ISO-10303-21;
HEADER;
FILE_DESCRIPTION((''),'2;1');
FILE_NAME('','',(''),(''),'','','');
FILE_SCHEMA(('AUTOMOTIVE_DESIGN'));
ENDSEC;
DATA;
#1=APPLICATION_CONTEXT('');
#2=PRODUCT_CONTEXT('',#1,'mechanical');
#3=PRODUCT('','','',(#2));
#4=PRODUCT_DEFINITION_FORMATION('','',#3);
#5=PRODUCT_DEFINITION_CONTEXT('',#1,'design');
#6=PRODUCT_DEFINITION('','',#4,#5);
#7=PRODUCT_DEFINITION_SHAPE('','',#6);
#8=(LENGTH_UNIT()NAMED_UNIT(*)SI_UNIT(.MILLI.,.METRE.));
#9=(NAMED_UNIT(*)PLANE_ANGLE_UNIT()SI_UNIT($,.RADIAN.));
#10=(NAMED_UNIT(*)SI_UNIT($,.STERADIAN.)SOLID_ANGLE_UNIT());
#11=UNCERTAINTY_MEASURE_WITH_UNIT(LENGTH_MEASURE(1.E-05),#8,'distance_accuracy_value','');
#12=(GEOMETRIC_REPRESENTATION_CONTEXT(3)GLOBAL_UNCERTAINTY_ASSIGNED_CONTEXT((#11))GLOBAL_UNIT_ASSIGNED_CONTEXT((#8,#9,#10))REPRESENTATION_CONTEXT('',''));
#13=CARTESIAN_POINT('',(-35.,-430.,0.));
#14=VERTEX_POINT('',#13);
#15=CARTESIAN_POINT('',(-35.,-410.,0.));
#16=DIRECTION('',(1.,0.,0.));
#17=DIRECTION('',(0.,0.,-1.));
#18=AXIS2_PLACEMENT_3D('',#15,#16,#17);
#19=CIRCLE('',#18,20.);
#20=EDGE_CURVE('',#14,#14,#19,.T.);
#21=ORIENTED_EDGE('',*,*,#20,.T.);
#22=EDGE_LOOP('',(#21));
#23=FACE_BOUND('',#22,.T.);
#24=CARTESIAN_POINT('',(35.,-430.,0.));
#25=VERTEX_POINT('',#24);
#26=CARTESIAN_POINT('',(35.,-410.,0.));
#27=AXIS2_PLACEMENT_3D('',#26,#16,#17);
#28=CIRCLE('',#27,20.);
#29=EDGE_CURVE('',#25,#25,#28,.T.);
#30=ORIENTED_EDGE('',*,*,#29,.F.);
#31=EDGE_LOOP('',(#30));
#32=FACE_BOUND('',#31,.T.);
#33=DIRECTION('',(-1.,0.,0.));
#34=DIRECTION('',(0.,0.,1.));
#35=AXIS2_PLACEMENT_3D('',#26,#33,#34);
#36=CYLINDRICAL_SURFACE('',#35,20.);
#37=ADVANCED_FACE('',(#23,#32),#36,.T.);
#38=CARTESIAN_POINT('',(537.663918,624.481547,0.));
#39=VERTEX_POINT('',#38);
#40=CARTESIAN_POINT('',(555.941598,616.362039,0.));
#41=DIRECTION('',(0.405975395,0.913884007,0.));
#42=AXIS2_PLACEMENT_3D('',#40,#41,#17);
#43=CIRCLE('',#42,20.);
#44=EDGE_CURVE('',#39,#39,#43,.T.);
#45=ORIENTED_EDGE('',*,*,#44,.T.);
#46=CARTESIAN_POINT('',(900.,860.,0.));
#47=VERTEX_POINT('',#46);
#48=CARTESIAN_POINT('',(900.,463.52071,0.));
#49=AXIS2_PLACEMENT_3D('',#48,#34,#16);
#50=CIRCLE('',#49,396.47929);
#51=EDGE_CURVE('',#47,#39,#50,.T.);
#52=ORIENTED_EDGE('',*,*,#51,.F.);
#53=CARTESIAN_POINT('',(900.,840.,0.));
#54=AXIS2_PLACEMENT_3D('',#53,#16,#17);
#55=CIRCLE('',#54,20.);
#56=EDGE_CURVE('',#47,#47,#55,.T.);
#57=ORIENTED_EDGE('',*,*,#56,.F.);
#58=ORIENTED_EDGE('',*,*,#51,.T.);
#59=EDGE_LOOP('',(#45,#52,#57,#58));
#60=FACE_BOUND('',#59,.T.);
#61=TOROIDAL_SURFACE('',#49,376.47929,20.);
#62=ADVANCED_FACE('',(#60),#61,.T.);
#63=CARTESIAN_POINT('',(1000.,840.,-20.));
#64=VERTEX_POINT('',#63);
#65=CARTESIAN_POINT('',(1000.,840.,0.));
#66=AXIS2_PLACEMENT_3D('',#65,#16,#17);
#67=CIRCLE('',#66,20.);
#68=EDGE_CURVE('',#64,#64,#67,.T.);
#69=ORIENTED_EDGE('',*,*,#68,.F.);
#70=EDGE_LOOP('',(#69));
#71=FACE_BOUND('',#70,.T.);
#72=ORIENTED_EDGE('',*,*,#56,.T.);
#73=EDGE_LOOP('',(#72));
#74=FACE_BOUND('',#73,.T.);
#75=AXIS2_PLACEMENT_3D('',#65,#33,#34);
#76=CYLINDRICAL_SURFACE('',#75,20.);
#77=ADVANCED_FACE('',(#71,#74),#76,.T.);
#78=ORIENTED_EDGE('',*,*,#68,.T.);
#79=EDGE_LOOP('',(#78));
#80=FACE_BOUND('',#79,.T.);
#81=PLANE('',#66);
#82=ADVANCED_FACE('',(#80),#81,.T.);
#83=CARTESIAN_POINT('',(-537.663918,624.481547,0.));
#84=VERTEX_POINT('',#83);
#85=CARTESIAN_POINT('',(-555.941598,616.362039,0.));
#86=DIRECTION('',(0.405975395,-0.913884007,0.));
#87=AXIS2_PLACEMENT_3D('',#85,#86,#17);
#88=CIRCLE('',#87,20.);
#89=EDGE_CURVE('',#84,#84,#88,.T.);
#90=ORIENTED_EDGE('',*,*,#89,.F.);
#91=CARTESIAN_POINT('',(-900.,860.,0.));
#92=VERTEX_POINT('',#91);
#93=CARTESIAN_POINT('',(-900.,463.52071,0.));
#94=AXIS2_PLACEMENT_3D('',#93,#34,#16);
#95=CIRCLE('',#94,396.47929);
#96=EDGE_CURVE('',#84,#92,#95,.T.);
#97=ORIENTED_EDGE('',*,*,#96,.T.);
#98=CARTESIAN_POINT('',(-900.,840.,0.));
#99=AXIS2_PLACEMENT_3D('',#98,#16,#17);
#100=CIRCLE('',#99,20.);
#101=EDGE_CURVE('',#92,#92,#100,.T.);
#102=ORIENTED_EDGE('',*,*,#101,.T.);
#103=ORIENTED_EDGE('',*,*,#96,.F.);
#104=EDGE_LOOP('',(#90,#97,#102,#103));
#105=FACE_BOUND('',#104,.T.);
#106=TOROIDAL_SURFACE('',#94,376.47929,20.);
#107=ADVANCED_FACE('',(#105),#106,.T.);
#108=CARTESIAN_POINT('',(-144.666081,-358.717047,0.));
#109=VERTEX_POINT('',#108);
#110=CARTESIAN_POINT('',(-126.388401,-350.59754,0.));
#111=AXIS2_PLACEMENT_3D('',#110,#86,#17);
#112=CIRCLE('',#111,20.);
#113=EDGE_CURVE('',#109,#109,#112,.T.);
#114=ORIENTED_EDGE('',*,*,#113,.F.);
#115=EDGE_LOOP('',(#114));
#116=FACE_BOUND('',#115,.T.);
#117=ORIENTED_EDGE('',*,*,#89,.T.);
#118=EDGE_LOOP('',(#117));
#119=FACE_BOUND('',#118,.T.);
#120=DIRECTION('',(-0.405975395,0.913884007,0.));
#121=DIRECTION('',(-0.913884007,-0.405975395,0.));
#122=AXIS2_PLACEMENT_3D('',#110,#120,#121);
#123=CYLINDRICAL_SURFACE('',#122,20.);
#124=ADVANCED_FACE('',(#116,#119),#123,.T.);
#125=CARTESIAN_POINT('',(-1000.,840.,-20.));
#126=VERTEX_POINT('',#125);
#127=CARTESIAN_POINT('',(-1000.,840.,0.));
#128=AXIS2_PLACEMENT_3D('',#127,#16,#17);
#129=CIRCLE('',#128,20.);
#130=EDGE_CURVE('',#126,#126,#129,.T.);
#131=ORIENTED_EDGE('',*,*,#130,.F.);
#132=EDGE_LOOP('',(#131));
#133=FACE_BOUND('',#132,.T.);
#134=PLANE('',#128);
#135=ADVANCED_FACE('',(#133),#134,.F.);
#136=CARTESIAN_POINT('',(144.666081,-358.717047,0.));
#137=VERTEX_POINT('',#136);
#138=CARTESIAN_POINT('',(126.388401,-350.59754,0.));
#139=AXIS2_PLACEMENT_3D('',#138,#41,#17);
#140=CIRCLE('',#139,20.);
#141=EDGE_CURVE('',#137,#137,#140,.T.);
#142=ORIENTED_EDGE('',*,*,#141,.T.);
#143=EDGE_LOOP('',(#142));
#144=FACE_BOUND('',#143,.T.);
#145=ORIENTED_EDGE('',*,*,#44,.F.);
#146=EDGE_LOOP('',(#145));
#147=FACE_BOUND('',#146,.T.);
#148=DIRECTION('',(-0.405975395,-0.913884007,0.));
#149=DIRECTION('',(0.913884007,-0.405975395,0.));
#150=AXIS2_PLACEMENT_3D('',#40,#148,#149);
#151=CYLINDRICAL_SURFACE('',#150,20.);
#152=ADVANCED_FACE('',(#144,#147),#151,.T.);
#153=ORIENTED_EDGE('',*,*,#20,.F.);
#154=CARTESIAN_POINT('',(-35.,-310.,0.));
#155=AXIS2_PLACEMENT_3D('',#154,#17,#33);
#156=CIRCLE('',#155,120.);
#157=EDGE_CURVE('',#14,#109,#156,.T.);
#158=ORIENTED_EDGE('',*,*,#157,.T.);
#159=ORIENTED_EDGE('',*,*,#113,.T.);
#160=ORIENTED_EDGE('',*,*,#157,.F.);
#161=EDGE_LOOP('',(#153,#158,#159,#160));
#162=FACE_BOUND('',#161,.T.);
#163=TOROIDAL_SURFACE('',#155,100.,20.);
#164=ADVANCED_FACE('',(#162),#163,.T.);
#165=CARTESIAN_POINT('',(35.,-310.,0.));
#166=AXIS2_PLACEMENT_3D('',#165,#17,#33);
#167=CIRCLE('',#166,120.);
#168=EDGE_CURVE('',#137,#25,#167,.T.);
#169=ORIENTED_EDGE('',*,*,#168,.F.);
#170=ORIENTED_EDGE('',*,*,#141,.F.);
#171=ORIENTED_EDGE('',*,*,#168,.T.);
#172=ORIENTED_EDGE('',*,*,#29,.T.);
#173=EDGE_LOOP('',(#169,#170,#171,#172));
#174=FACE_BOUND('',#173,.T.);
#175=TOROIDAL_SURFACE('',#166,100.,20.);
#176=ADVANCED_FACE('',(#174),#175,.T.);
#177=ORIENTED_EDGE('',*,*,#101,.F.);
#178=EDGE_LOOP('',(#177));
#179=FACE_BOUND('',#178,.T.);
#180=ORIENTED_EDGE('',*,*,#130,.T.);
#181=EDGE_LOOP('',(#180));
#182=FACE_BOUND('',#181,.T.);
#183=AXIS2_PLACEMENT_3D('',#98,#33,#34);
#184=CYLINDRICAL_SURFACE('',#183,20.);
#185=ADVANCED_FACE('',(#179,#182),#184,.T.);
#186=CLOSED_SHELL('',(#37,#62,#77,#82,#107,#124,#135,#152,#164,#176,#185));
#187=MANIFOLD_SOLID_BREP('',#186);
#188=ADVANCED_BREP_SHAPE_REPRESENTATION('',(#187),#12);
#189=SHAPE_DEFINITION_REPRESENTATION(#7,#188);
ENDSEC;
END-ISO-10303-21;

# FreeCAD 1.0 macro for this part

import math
import FreeCAD as App
import Part
import Sketcher

V = App.Vector
Q = App.Units.Quantity

doc = App.newDocument("Part")
params = doc.addObject("Spreadsheet::Sheet", "Params")
for row, (alias, value) in enumerate([
    ("sketch1_diameter", "40 mm"),
    ("sketch2_radius", "100 mm"),
    ("sketch2_width", "100 mm"),
    ("sketch2_width2", "70 mm"),
], start=1):
    params.set(f"A{row}", alias)
    params.set(f"B{row}", "=" + value)
    params.setAlias(f"B{row}", alias)

body = doc.addObject("PartDesign::Body", "Body")

# Sketch on YZ plane
sketch1 = body.newObject("Sketcher::SketchObject", "Sketch")
sketch1.AttachmentSupport = (doc.getObject("YZ_Plane"), [""])
sketch1.MapMode = "FlatFace"
sketch1.AttachmentOffset = App.Placement(V(0, 0, -1000), App.Rotation())
sketch1.addGeometry(Part.Circle(V(840, 0, 0), V(0, 0, 1), 20), False)
sketch1.addConstraint([
    Sketcher.Constraint("PointOnObject", 0, 3, -1),
    Sketcher.Constraint("Diameter", 0, Q("40 mm")),
    Sketcher.Constraint("DistanceX", -1, 1, 0, 3, Q("840 mm")),
])
sketch1.setExpression("Constraints[1]", "Params.sketch1_diameter")

# Sketch on XY plane
sketch2 = body.newObject("Sketcher::SketchObject", "Sketch001")
sketch2.AttachmentSupport = (doc.getObject("XY_Plane"), [""])
sketch2.MapMode = "FlatFace"
sketch2.addGeometry([
    Part.LineSegment(V(1000, 840, 0), V(900, 840, 0)),  # 0
    Part.ArcOfCircle(Part.Circle(V(900, 464, 0), V(0, 0, 1), 376), math.radians(90), math.radians(156)),  # 1
    Part.LineSegment(V(556, 616, 0), V(126, -351, 0)),  # 2
    Part.ArcOfCircle(Part.Circle(V(35, -310, 0), V(0, 0, 1), 100), math.radians(-90), math.radians(-24)),  # 3
    Part.LineSegment(V(35, -410, 0), V(-35, -410, 0)),  # 4
    Part.ArcOfCircle(Part.Circle(V(-35, -310, 0), V(0, 0, 1), 100), math.radians(-156), math.radians(-90)),  # 5
    Part.LineSegment(V(-126, -351, 0), V(-556, 616, 0)),  # 6
    Part.ArcOfCircle(Part.Circle(V(-900, 464, 0), V(0, 0, 1), 376), math.radians(24), math.radians(90)),  # 7
    Part.LineSegment(V(-900, 840, 0), V(-1000, 840, 0)),  # 8
], False)
sketch2.addConstraint([
    Sketcher.Constraint("Tangent", 0, 2, 1, 1),
    Sketcher.Constraint("Tangent", 1, 2, 2, 1),
    Sketcher.Constraint("Tangent", 2, 2, 3, 2),
    Sketcher.Constraint("Tangent", 3, 1, 4, 1),
    Sketcher.Constraint("Tangent", 4, 2, 5, 2),
    Sketcher.Constraint("Tangent", 5, 1, 6, 1),
    Sketcher.Constraint("Tangent", 6, 2, 7, 1),
    Sketcher.Constraint("Tangent", 7, 2, 8, 1),
    Sketcher.Constraint("Horizontal", 0),
    Sketcher.Constraint("Horizontal", 4),
    Sketcher.Constraint("Horizontal", 8),
    Sketcher.Constraint("Equal", 3, 5),
    Sketcher.Constraint("Equal", 1, 7),
    Sketcher.Constraint("Symmetric", 1, 3, 7, 3, -2),
    Sketcher.Constraint("Equal", 0, 8),
    Sketcher.Constraint("Equal", 2, 6),
    Sketcher.Constraint("Radius", 3, Q("100 mm")),
    Sketcher.Constraint("DistanceX", 0, 2, 0, 1, Q("100 mm")),
    Sketcher.Constraint("DistanceX", 4, 2, 4, 1, Q("70 mm")),
    Sketcher.Constraint("DistanceX", -1, 1, 1, 3, Q("900 mm")),
    Sketcher.Constraint("DistanceY", 3, 3, -1, 1, Q("310 mm")),
    Sketcher.Constraint("DistanceY", -1, 1, 0, 1, Q("840 mm")),
    Sketcher.Constraint("Radius", 1, Q("376.47929 mm")),
])
sketch2.setExpression("Constraints[16]", "Params.sketch2_radius")
sketch2.setExpression("Constraints[17]", "Params.sketch2_width")
sketch2.setExpression("Constraints[18]", "Params.sketch2_width2")
doc.recompute()

additivepipe = body.newObject("PartDesign::AdditivePipe", "AdditivePipe")
additivepipe.Profile = sketch1
additivepipe.Spine = (sketch2, ["Edge1", "Edge2", "Edge3", "Edge4", "Edge5", "Edge6", "Edge7", "Edge8", "Edge9"])

doc.recompute()
